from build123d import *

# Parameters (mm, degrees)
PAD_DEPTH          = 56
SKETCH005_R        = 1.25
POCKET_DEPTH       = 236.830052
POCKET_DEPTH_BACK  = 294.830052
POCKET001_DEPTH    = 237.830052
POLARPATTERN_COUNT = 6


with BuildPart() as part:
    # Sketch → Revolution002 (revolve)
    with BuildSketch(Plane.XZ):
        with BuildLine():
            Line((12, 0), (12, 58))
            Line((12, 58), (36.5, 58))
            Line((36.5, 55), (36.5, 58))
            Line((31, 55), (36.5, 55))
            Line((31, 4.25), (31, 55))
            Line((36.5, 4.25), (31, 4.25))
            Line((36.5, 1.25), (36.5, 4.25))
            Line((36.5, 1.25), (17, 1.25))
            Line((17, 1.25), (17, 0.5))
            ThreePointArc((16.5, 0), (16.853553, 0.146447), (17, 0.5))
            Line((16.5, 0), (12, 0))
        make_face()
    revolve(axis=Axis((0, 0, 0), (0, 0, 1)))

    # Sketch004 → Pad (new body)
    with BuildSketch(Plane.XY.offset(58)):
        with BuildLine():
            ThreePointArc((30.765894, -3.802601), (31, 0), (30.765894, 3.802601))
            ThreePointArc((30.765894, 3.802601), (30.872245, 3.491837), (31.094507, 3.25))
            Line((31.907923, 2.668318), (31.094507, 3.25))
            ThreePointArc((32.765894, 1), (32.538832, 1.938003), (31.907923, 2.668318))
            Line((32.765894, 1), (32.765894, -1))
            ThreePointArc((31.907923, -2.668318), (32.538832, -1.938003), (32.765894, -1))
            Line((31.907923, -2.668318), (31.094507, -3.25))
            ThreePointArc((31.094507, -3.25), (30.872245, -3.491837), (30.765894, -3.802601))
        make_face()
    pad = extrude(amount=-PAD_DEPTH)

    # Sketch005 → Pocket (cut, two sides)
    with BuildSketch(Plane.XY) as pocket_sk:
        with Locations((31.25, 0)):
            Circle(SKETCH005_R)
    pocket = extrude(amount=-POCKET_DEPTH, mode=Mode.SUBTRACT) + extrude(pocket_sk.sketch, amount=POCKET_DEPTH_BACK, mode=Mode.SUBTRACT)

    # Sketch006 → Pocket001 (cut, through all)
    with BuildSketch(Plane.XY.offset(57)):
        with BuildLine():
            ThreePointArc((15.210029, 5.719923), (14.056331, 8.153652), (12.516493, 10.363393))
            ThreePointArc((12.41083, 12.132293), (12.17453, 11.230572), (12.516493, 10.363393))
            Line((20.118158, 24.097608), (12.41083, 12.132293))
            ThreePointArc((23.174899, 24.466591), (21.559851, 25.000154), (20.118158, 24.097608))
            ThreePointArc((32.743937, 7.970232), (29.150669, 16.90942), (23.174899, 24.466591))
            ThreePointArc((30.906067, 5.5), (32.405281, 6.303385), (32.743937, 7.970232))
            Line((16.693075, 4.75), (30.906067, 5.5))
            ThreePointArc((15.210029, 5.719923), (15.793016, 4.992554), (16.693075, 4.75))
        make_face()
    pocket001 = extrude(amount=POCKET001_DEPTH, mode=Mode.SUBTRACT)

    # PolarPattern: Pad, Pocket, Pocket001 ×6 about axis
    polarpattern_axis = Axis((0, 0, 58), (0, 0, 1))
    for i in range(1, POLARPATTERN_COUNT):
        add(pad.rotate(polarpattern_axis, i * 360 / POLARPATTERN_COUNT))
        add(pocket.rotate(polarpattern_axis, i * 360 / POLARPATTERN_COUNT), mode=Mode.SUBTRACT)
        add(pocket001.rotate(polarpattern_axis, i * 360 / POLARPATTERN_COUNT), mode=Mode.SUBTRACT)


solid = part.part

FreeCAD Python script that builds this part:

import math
import FreeCAD as App
import Part
import Sketcher
from FreeCAD import Vector

doc = App.newDocument("Part")
body = doc.addObject("PartDesign::Body", "Body")

# Sketch on XZ plane
sketch1 = body.newObject("Sketcher::SketchObject", "Sketch")
sketch1.AttachmentSupport = (doc.getObject("XZ_Plane"), [""])
sketch1.MapMode = "FlatFace"
sketch1.addGeometry(Part.LineSegment(Vector(12, 58, 0), Vector(12, 0, 0)), False)
sketch1.addGeometry(Part.LineSegment(Vector(12, 0, 0), Vector(16.5, 0, 0)), False)
sketch1.addGeometry(Part.ArcOfCircle(Part.Circle(Vector(16.5, 0.5, 0), Vector(0, 0, 1), 0.5), math.radians(-90), math.radians(0)), False)
sketch1.addGeometry(Part.LineSegment(Vector(17, 0.5, 0), Vector(17, 1.2, 0)), False)
sketch1.addGeometry(Part.LineSegment(Vector(17, 1.2, 0), Vector(36.5, 1.2, 0)), False)
sketch1.addGeometry(Part.LineSegment(Vector(36.5, 1.2, 0), Vector(36.5, 4.2, 0)), False)
sketch1.addGeometry(Part.LineSegment(Vector(36.5, 4.2, 0), Vector(31, 4.2, 0)), False)
sketch1.addGeometry(Part.LineSegment(Vector(31, 4.2, 0), Vector(31, 55, 0)), False)
sketch1.addGeometry(Part.LineSegment(Vector(31, 55, 0), Vector(36.5, 55, 0)), False)
sketch1.addGeometry(Part.LineSegment(Vector(36.5, 55, 0), Vector(36.5, 58, 0)), False)
sketch1.addGeometry(Part.LineSegment(Vector(36.5, 58, 0), Vector(12, 58, 0)), False)
sketch1.addConstraint(Sketcher.Constraint("Coincident", 0, 2, 1, 1))
sketch1.addConstraint(Sketcher.Constraint("Coincident", 1, 2, 2, 1))
sketch1.addConstraint(Sketcher.Constraint("Coincident", 2, 2, 3, 1))
sketch1.addConstraint(Sketcher.Constraint("Coincident", 3, 2, 4, 1))
sketch1.addConstraint(Sketcher.Constraint("Coincident", 4, 2, 5, 1))
sketch1.addConstraint(Sketcher.Constraint("Coincident", 5, 2, 6, 1))
sketch1.addConstraint(Sketcher.Constraint("Coincident", 6, 2, 7, 1))
sketch1.addConstraint(Sketcher.Constraint("Coincident", 7, 2, 8, 1))
sketch1.addConstraint(Sketcher.Constraint("Coincident", 8, 2, 9, 1))
sketch1.addConstraint(Sketcher.Constraint("Coincident", 9, 2, 10, 1))
sketch1.addConstraint(Sketcher.Constraint("Coincident", 10, 2, 0, 1))
sketch1.addConstraint(Sketcher.Constraint("Vertical", 0))
sketch1.addConstraint(Sketcher.Constraint("Horizontal", 1))
sketch1.addConstraint(Sketcher.Constraint("Vertical", 3))
sketch1.addConstraint(Sketcher.Constraint("Horizontal", 4))
sketch1.addConstraint(Sketcher.Constraint("Vertical", 5))
sketch1.addConstraint(Sketcher.Constraint("Horizontal", 6))
sketch1.addConstraint(Sketcher.Constraint("Vertical", 7))
sketch1.addConstraint(Sketcher.Constraint("Horizontal", 8))
sketch1.addConstraint(Sketcher.Constraint("Vertical", 9))
sketch1.addConstraint(Sketcher.Constraint("Horizontal", 10))
sketch1.addConstraint(Sketcher.Constraint("PointOnObject", 0, 2, -1))
sketch1.addConstraint(Sketcher.Constraint("Vertical", 2, 3, 1, 2))
sketch1.addConstraint(Sketcher.Constraint("Vertical", 5, 2, 8, 2))
sketch1.addConstraint(Sketcher.Constraint("Equal", 5, 9))
sketch1.addConstraint(Sketcher.Constraint("Radius", 2, 0.500001))
sketch1.addConstraint(Sketcher.Constraint("DistanceY", 0, 2, 0, 1, 58.0))
sketch1.addConstraint(Sketcher.Constraint("DistanceY", 5, 1, 5, 2, 3.0))
sketch1.addConstraint(Sketcher.Constraint("DistanceX", 1, 1, 1, 2, 4.5))
sketch1.addConstraint(Sketcher.Constraint("DistanceX", 4, 1, 4, 2, 19.5))
sketch1.addConstraint(Sketcher.Constraint("DistanceX", 6, 2, 6, 1, 5.5))
sketch1.addConstraint(Sketcher.Constraint("DistanceX", -1, 1, 0, 2, 12.0))
sketch1.addConstraint(Sketcher.Constraint("DistanceY", 3, 1, 3, 2, 0.75))
sketch1.addConstraint(Sketcher.Constraint("DistanceY", 7, 1, 7, 2, 50.75))
revolution = body.newObject("PartDesign::Revolution", "Revolution")
revolution.Profile = sketch1
revolution.ReferenceAxis = (sketch1, ["V_Axis"])
revolution.Angle = 360

# Sketch on XY plane
sketch2 = body.newObject("Sketcher::SketchObject", "Sketch001")
sketch2.AttachmentSupport = (doc.getObject("XY_Plane"), [""])
sketch2.MapMode = "FlatFace"
sketch2.AttachmentOffset = App.Placement(Vector(0, 0, 58), App.Rotation())
sketch2.addGeometry(Part.ArcOfCircle(Part.Circle(Vector(0, 0, 0), Vector(0, 0, 1), 31), math.radians(-7.05), math.radians(7.05)), False)
sketch2.addGeometry(Part.ArcOfCircle(Part.Circle(Vector(31.6, -3.9, 0), Vector(0, 0, 1), 0.8), math.radians(126), math.radians(173)), False)
sketch2.addGeometry(Part.LineSegment(Vector(31.1, -3.2, 0), Vector(31.9, -2.7, 0)), False)
sketch2.addGeometry(Part.ArcOfCircle(Part.Circle(Vector(30.7, -1, 0), Vector(0, 0, 1), 2.1), math.radians(-54), math.radians(0)), False)
sketch2.addGeometry(Part.LineSegment(Vector(32.8, -1, 0), Vector(32.8, 1, 0)), False)
sketch2.addGeometry(Part.ArcOfCircle(Part.Circle(Vector(30.7, 1, 0), Vector(0, 0, 1), 2.1), math.radians(0), math.radians(54)), False)
sketch2.addGeometry(Part.LineSegment(Vector(31.9, 2.7, 0), Vector(31.1, 3.2, 0)), False)
sketch2.addGeometry(Part.ArcOfCircle(Part.Circle(Vector(31.6, 3.9, 0), Vector(0, 0, 1), 0.8), math.radians(-173), math.radians(-126)), False)
sketch2.addConstraint(Sketcher.Constraint("Tangent", 0, 1, 1, 2))
sketch2.addConstraint(Sketcher.Constraint("Tangent", 1, 1, 2, 1))
sketch2.addConstraint(Sketcher.Constraint("Tangent", 2, 2, 3, 1))
sketch2.addConstraint(Sketcher.Constraint("Tangent", 3, 2, 4, 1))
sketch2.addConstraint(Sketcher.Constraint("Tangent", 4, 2, 5, 1))
sketch2.addConstraint(Sketcher.Constraint("Tangent", 5, 2, 6, 1))
sketch2.addConstraint(Sketcher.Constraint("Tangent", 6, 2, 7, 2))
sketch2.addConstraint(Sketcher.Constraint("Tangent", 7, 1, 0, 2))
sketch2.addConstraint(Sketcher.Constraint("Vertical", 4))
sketch2.addConstraint(Sketcher.Constraint("Equal", 3, 5))
sketch2.addConstraint(Sketcher.Constraint("Equal", 1, 7))
sketch2.addConstraint(Sketcher.Constraint("Symmetric", 1, 3, 7, 3, -1))
sketch2.addConstraint(Sketcher.Constraint("Vertical", 2, 2, 5, 2))
sketch2.addConstraint(Sketcher.Constraint("Radius", 1, 0.799999))
sketch2.addConstraint(Sketcher.Constraint("DistanceY", 4, 1, 4, 2, 2.0))
sketch2.addConstraint(Sketcher.Constraint("Distance", 2, 1.0))
sketch2.addConstraint(Sketcher.Constraint("DistanceX", 7, 1, 4, 2, 2.0))
sketch2.addConstraint(Sketcher.Constraint("DistanceY", 1, 1, -1, 1, 3.25))
sketch2.addConstraint(Sketcher.Constraint("Radius", 0, 31.000017))
sketch2.addConstraint(Sketcher.Constraint("DistanceX", -1, 1, 1, 3, 31.559852))
pad1 = body.newObject("PartDesign::Pad", "Pad")
pad1.Profile = sketch2
pad1.Length = 56
pad1.Reversed = True

# Sketch on XY plane
sketch3 = body.newObject("Sketcher::SketchObject", "Sketch002")
sketch3.AttachmentSupport = (doc.getObject("XY_Plane"), [""])
sketch3.MapMode = "FlatFace"
sketch3.addGeometry(Part.Circle(Vector(31.2, 0, 0), Vector(0, 0, 1), 1.2), False)
sketch3.addConstraint(Sketcher.Constraint("PointOnObject", 0, 3, -1))
sketch3.addConstraint(Sketcher.Constraint("Diameter", 0, 2.5))
sketch3.addConstraint(Sketcher.Constraint("DistanceX", -1, 1, 0, 3, 31.25))
pocket1 = body.newObject("PartDesign::Pocket", "Pocket")
pocket1.Profile = sketch3
pocket1.Type = "ThroughAll"
pocket1.Midplane = True

# Sketch on XY plane
sketch4 = body.newObject("Sketcher::SketchObject", "Sketch003")
sketch4.AttachmentSupport = (doc.getObject("XY_Plane"), [""])
sketch4.MapMode = "FlatFace"
sketch4.AttachmentOffset = App.Placement(Vector(0, 0, 57), App.Rotation())
sketch4.addGeometry(Part.ArcOfCircle(Part.Circle(Vector(0, 0, 0), Vector(0, 0, 1), 16.3), math.radians(20.61), math.radians(39.62)), False)
sketch4.addGeometry(Part.ArcOfCircle(Part.Circle(Vector(16.6, 6.2, 0), Vector(0, 0, 1), 1.5), math.radians(-159), math.radians(-87)), False)
sketch4.addGeometry(Part.LineSegment(Vector(16.7, 4.8, 0), Vector(30.9, 5.5, 0)), False)
sketch4.addGeometry(Part.ArcOfCircle(Part.Circle(Vector(30.8, 7.5, 0), Vector(0, 0, 1), 2), math.radians(-87), math.radians(14)), False)
sketch4.addGeometry(Part.ArcOfCircle(Part.Circle(Vector(0, 0, 0), Vector(0, 0, 1), 33.7), math.radians(14), math.radians(47)), False)
sketch4.addGeometry(Part.ArcOfCircle(Part.Circle(Vector(21.8, 23, 0), Vector(0, 0, 1), 2), math.radians(47), math.radians(147)), False)
sketch4.addGeometry(Part.LineSegment(Vector(20.1, 24.1, 0), Vector(12.4, 12.1, 0)), False)
sketch4.addGeometry(Part.ArcOfCircle(Part.Circle(Vector(13.7, 11.3, 0), Vector(0, 0, 1), 1.5), math.radians(147), math.radians(220)), False)
sketch4.addConstraint(Sketcher.Constraint("Tangent", 0, 1, 1, 1))
sketch4.addConstraint(Sketcher.Constraint("Tangent", 1, 2, 2, 1))
sketch4.addConstraint(Sketcher.Constraint("Tangent", 2, 2, 3, 1))
sketch4.addConstraint(Sketcher.Constraint("Tangent", 3, 2, 4, 1))
sketch4.addConstraint(Sketcher.Constraint("Tangent", 4, 2, 5, 1))
sketch4.addConstraint(Sketcher.Constraint("Tangent", 5, 2, 6, 1))
sketch4.addConstraint(Sketcher.Constraint("Tangent", 6, 2, 7, 1))
sketch4.addConstraint(Sketcher.Constraint("Coincident", 7, 2, 0, 2))
sketch4.addConstraint(Sketcher.Constraint("Coincident", 4, 3, -1, 1))
sketch4.addConstraint(Sketcher.Constraint("Equal", 3, 5))
sketch4.addConstraint(Sketcher.Constraint("Equal", 2, 6))
sketch4.addConstraint(Sketcher.Constraint("Radius", 3, 2.0))
sketch4.addConstraint(Sketcher.Constraint("Radius", 1, 1.5))
sketch4.addConstraint(Sketcher.Constraint("DistanceY", -1, 1, 2, 2, 5.5))
sketch4.addConstraint(Sketcher.Constraint("DistanceY", -1, 1, 1, 2, 4.75))
sketch4.addConstraint(Sketcher.Constraint("Radius", 4, 33.700009))
sketch4.addConstraint(Sketcher.Constraint("Radius", 0, 16.250054))
sketch4.addConstraint(Sketcher.Constraint("Radius", 7, 1.499996))
sketch4.addConstraint(Sketcher.Constraint("DistanceX", -1, 1, 4, 2, 23.174899))
sketch4.addConstraint(Sketcher.Constraint("DistanceY", 0, 1, 3, 3, 1.777298))
sketch4.addConstraint(Sketcher.Constraint("DistanceX", 1, 2, 3, 3, 14.107602))
sketch4.addConstraint(Sketcher.Constraint("DistanceY", 7, 2, 6, 2, 1.7689))
pocket2 = body.newObject("PartDesign::Pocket", "Pocket001")
pocket2.Profile = sketch4
pocket2.Type = "ThroughAll"
pocket2.Reversed = True
doc.recompute()

polarpattern = body.newObject("PartDesign::PolarPattern", "PolarPattern")
polarpattern.Originals = [pad1, pocket1, pocket2]
polarpattern.Axis = (doc.getObject("Z_Axis"), [""])
polarpattern.Angle = 360
polarpattern.Occurrences = 6
body.Tip = polarpattern

doc.recompute()
